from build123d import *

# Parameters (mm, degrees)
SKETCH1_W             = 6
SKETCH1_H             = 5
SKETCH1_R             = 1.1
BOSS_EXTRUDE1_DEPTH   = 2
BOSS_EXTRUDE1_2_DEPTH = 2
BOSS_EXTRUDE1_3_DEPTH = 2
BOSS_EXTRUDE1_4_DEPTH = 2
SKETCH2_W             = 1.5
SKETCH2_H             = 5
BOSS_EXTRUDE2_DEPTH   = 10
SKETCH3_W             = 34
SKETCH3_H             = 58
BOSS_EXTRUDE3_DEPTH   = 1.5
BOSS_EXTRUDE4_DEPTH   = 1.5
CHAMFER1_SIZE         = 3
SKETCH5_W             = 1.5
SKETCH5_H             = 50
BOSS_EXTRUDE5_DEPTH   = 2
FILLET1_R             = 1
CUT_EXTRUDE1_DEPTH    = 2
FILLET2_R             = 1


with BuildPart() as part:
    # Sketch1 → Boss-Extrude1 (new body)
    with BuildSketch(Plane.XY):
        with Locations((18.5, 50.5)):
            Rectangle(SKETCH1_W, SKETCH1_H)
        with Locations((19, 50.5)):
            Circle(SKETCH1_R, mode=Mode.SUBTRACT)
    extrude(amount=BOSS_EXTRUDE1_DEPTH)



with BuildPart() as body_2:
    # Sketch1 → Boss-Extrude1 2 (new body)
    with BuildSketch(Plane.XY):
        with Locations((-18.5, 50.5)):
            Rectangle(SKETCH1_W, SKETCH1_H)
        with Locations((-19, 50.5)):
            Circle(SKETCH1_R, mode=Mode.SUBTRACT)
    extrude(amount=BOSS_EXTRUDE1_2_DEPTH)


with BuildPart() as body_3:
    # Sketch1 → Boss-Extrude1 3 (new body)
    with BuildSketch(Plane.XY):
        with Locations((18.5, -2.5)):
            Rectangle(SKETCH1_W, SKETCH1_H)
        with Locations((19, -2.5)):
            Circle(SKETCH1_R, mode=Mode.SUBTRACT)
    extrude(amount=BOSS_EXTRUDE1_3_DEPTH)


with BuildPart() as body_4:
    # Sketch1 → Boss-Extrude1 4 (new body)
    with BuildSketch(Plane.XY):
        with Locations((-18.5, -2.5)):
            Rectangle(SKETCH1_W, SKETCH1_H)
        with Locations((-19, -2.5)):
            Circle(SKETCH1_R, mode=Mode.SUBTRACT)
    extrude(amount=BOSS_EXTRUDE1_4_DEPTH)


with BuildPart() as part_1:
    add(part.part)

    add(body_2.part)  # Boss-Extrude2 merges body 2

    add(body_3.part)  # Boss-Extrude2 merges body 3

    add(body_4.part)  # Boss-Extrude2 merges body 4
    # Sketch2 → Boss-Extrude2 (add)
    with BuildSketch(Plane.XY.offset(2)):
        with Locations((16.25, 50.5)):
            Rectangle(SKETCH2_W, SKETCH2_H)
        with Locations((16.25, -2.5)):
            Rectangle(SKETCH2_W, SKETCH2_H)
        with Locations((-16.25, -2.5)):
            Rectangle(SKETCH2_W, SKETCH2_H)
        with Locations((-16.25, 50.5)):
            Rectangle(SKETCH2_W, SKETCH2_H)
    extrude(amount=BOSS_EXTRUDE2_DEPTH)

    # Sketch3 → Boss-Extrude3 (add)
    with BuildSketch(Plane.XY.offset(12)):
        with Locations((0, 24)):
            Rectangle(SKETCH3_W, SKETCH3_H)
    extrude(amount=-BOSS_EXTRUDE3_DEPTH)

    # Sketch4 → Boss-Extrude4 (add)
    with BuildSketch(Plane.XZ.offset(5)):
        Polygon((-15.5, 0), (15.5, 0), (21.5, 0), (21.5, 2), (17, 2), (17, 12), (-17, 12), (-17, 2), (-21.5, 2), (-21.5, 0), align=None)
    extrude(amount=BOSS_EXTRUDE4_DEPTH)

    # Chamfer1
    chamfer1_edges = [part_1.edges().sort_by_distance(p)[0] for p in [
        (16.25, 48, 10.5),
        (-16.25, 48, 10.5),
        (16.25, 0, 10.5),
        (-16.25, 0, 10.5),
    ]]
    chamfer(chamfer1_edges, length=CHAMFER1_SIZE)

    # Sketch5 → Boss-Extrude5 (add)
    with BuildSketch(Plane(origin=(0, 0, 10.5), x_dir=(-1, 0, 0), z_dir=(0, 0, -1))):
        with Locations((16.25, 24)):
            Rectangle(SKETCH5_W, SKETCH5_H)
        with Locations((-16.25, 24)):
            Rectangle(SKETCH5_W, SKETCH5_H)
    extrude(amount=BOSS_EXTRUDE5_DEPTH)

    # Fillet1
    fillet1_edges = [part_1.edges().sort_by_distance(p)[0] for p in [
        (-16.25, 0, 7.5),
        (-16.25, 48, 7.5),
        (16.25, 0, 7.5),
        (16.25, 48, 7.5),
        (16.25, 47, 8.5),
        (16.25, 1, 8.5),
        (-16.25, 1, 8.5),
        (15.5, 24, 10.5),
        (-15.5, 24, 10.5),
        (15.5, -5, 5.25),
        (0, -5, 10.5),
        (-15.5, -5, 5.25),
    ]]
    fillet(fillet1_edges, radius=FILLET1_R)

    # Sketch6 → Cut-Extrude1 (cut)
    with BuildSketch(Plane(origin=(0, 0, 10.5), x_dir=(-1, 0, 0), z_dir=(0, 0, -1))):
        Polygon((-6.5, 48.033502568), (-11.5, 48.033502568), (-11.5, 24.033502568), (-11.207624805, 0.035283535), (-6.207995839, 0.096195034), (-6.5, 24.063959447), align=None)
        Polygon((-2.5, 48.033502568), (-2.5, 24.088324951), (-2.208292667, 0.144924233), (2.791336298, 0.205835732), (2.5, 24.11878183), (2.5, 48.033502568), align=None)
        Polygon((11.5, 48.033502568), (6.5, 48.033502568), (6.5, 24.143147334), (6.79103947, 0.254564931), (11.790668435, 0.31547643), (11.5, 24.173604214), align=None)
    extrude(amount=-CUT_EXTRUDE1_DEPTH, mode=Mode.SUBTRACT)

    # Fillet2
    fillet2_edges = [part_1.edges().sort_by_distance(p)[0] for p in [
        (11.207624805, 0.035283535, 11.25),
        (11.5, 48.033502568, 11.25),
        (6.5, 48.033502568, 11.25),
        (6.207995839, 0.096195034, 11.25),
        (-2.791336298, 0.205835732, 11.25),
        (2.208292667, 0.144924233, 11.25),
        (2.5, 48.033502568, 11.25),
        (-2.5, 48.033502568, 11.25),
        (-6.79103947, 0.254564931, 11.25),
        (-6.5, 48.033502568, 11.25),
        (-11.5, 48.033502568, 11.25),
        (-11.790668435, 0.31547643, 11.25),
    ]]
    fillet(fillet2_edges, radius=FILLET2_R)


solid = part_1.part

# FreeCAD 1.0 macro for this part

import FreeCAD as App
import Part
import Sketcher
from FreeCAD import Vector


def edges_at(feature, points):
    """Names of the edges that pass closest to the given points."""
    edges = feature.Shape.Edges
    near = lambda p: min(range(len(edges)), key=lambda i: edges[i].distToShape(Part.Vertex(*p))[0])
    return sorted({f"Edge{near(p) + 1}" for p in points})


def add_polygon(sketch, points):
    """Adds a closed chain of lines whose ends are joined by coincident constraints."""
    first, n = sketch.GeometryCount, len(points)
    for a, b in zip(points, points[1:] + points[:1]):
        sketch.addGeometry(Part.LineSegment(App.Vector(*a, 0), App.Vector(*b, 0)), False)
    for i in range(n):
        sketch.addConstraint(Sketcher.Constraint("Coincident", first + i, 2, first + (i + 1) % n, 1))

doc = App.newDocument("Part")
body = doc.addObject("PartDesign::Body", "Body")

# Sketch on XY plane
sketch1 = doc.addObject("Sketcher::SketchObject", "Sketch")
body.addObject(sketch1)
sketch1.AttachmentSupport = (doc.XY_Plane, [""])
sketch1.MapMode = "FlatFace"
add_polygon(sketch1, [(15.5, 53), (15.5, 48), (21.5, 48), (21.5, 53)])  # lines 0-3
sketch1.addGeometry(Part.Circle(Vector(19, 50.5, 0), Vector(0, 0, 1), 1.1), False)  # 4
sketch1.addConstraint(Sketcher.Constraint("Vertical", 0))
sketch1.addConstraint(Sketcher.Constraint("Horizontal", 1))
sketch1.addConstraint(Sketcher.Constraint("Vertical", 2))
sketch1.addConstraint(Sketcher.Constraint("Horizontal", 3))
sketch1.addConstraint(Sketcher.Constraint("Diameter", 4, 2.2))
sketch1.addConstraint(Sketcher.Constraint("DistanceX", 1, 1, 1, 2, 6.0))
sketch1.addConstraint(Sketcher.Constraint("DistanceY", 0, 2, 0, 1, 5.0))
sketch1.addConstraint(Sketcher.Constraint("DistanceX", -1, 1, 4, 3, 19.0))
sketch1.addConstraint(Sketcher.Constraint("DistanceY", -1, 1, 0, 2, 48.0))
sketch1.addConstraint(Sketcher.Constraint("DistanceY", -1, 1, 4, 3, 50.5))
sketch1.addConstraint(Sketcher.Constraint("DistanceX", -1, 1, 0, 2, 15.5))
pad1 = doc.addObject("PartDesign::Pad", "Pad")
body.addObject(pad1)
pad1.Profile = sketch1
pad1.Length = 2
body2 = doc.addObject("PartDesign::Body", "Body001")

# Sketch on XY plane
sketch2 = doc.addObject("Sketcher::SketchObject", "Sketch001")
body2.addObject(sketch2)
sketch2.AttachmentSupport = (doc.getObject("XY_Plane001"), [""])
sketch2.MapMode = "FlatFace"
add_polygon(sketch2, [(-21.5, 53), (-21.5, 48), (-15.5, 48), (-15.5, 53)])  # lines 0-3
sketch2.addGeometry(Part.Circle(Vector(-19, 50.5, 0), Vector(0, 0, 1), 1.1), False)  # 4
sketch2.addConstraint(Sketcher.Constraint("Vertical", 0))
sketch2.addConstraint(Sketcher.Constraint("Horizontal", 1))
sketch2.addConstraint(Sketcher.Constraint("Vertical", 2))
sketch2.addConstraint(Sketcher.Constraint("Horizontal", 3))
sketch2.addConstraint(Sketcher.Constraint("Diameter", 4, 2.2))
sketch2.addConstraint(Sketcher.Constraint("DistanceX", 1, 1, 1, 2, 6.0))
sketch2.addConstraint(Sketcher.Constraint("DistanceY", 0, 2, 0, 1, 5.0))
sketch2.addConstraint(Sketcher.Constraint("DistanceX", 4, 3, -1, 1, 19.0))
sketch2.addConstraint(Sketcher.Constraint("DistanceY", -1, 1, 0, 2, 48.0))
sketch2.addConstraint(Sketcher.Constraint("DistanceY", -1, 1, 4, 3, 50.5))
sketch2.addConstraint(Sketcher.Constraint("DistanceX", 0, 2, -1, 1, 21.5))
pad2 = doc.addObject("PartDesign::Pad", "Pad001")
body2.addObject(pad2)
pad2.Profile = sketch2
pad2.Length = 2
body3 = doc.addObject("PartDesign::Body", "Body002")

# Sketch on XY plane
sketch3 = doc.addObject("Sketcher::SketchObject", "Sketch002")
body3.addObject(sketch3)
sketch3.AttachmentSupport = (doc.getObject("XY_Plane002"), [""])
sketch3.MapMode = "FlatFace"
add_polygon(sketch3, [(15.5, 0), (15.5, -5), (21.5, -5), (21.5, 0)])  # lines 0-3
sketch3.addGeometry(Part.Circle(Vector(19, -2.5, 0), Vector(0, 0, 1), 1.1), False)  # 4
sketch3.addConstraint(Sketcher.Constraint("Vertical", 0))
sketch3.addConstraint(Sketcher.Constraint("Horizontal", 1))
sketch3.addConstraint(Sketcher.Constraint("Vertical", 2))
sketch3.addConstraint(Sketcher.Constraint("Horizontal", 3))
sketch3.addConstraint(Sketcher.Constraint("PointOnObject", 2, 2, -1))
sketch3.addConstraint(Sketcher.Constraint("Diameter", 4, 2.2))
sketch3.addConstraint(Sketcher.Constraint("DistanceX", 1, 1, 1, 2, 6.0))
sketch3.addConstraint(Sketcher.Constraint("DistanceY", 0, 2, 0, 1, 5.0))
sketch3.addConstraint(Sketcher.Constraint("DistanceX", -1, 1, 4, 3, 19.0))
sketch3.addConstraint(Sketcher.Constraint("DistanceY", 4, 3, -1, 1, 2.5))
sketch3.addConstraint(Sketcher.Constraint("DistanceX", -1, 1, 0, 2, 15.5))
pad3 = doc.addObject("PartDesign::Pad", "Pad002")
body3.addObject(pad3)
pad3.Profile = sketch3
pad3.Length = 2
body4 = doc.addObject("PartDesign::Body", "Body003")

# Sketch on XY plane
sketch4 = doc.addObject("Sketcher::SketchObject", "Sketch003")
body4.addObject(sketch4)
sketch4.AttachmentSupport = (doc.getObject("XY_Plane003"), [""])
sketch4.MapMode = "FlatFace"
add_polygon(sketch4, [(-21.5, 0), (-21.5, -5), (-15.5, -5), (-15.5, 0)])  # lines 0-3
sketch4.addGeometry(Part.Circle(Vector(-19, -2.5, 0), Vector(0, 0, 1), 1.1), False)  # 4
sketch4.addConstraint(Sketcher.Constraint("Vertical", 0))
sketch4.addConstraint(Sketcher.Constraint("Horizontal", 1))
sketch4.addConstraint(Sketcher.Constraint("Vertical", 2))
sketch4.addConstraint(Sketcher.Constraint("Horizontal", 3))
sketch4.addConstraint(Sketcher.Constraint("PointOnObject", 2, 2, -1))
sketch4.addConstraint(Sketcher.Constraint("Diameter", 4, 2.2))
sketch4.addConstraint(Sketcher.Constraint("DistanceX", 1, 1, 1, 2, 6.0))
sketch4.addConstraint(Sketcher.Constraint("DistanceY", 0, 2, 0, 1, 5.0))
sketch4.addConstraint(Sketcher.Constraint("DistanceX", 4, 3, -1, 1, 19.0))
sketch4.addConstraint(Sketcher.Constraint("DistanceY", 4, 3, -1, 1, 2.5))
sketch4.addConstraint(Sketcher.Constraint("DistanceX", 0, 2, -1, 1, 21.5))
pad4 = doc.addObject("PartDesign::Pad", "Pad003")
body4.addObject(pad4)
pad4.Profile = sketch4
pad4.Length = 2
body.AllowCompound = True
doc.recompute()

boolean = doc.addObject("PartDesign::Boolean", "Boolean")
body.addObject(boolean)
boolean.Type = "Fuse"
boolean.addObjects([body2])
doc.recompute()

boolean2 = doc.addObject("PartDesign::Boolean", "Boolean001")
body.addObject(boolean2)
boolean2.Type = "Fuse"
boolean2.addObjects([body3])
doc.recompute()

boolean3 = doc.addObject("PartDesign::Boolean", "Boolean002")
body.addObject(boolean3)
boolean3.Type = "Fuse"
boolean3.addObjects([body4])

# Sketch on XY plane
sketch5 = doc.addObject("Sketcher::SketchObject", "Sketch004")
body.addObject(sketch5)
sketch5.AttachmentSupport = (doc.XY_Plane, [""])
sketch5.MapMode = "FlatFace"
sketch5.AttachmentOffset = App.Placement(Vector(0, 0, 2), App.Rotation())
add_polygon(sketch5, [(15.5, 53), (15.5, 48), (17, 48), (17, 53)])  # lines 0-3
add_polygon(sketch5, [(15.5, 0), (15.5, -5), (17, -5), (17, 0)])  # lines 4-7
add_polygon(sketch5, [(-17, 0), (-17, -5), (-15.5, -5), (-15.5, 0)])  # lines 8-11
add_polygon(sketch5, [(-17, 53), (-17, 48), (-15.5, 48), (-15.5, 53)])  # lines 12-15
sketch5.addConstraint(Sketcher.Constraint("Vertical", 0))
sketch5.addConstraint(Sketcher.Constraint("Horizontal", 1))
sketch5.addConstraint(Sketcher.Constraint("Vertical", 2))
sketch5.addConstraint(Sketcher.Constraint("Horizontal", 3))
sketch5.addConstraint(Sketcher.Constraint("Vertical", 4))
sketch5.addConstraint(Sketcher.Constraint("Horizontal", 5))
sketch5.addConstraint(Sketcher.Constraint("Vertical", 6))
sketch5.addConstraint(Sketcher.Constraint("Horizontal", 7))
sketch5.addConstraint(Sketcher.Constraint("Vertical", 8))
sketch5.addConstraint(Sketcher.Constraint("Horizontal", 9))
sketch5.addConstraint(Sketcher.Constraint("Vertical", 10))
sketch5.addConstraint(Sketcher.Constraint("Horizontal", 11))
sketch5.addConstraint(Sketcher.Constraint("Vertical", 12))
sketch5.addConstraint(Sketcher.Constraint("Horizontal", 13))
sketch5.addConstraint(Sketcher.Constraint("Vertical", 14))
sketch5.addConstraint(Sketcher.Constraint("Horizontal", 15))
sketch5.addConstraint(Sketcher.Constraint("Symmetric", 7, 2, 10, 2, -1, 1))
sketch5.addConstraint(Sketcher.Constraint("Symmetric", 5, 2, 8, 2, -2))
sketch5.addConstraint(Sketcher.Constraint("Symmetric", 1, 2, 12, 2, -2))
sketch5.addConstraint(Sketcher.Constraint("Symmetric", 3, 2, 14, 2, -2))
sketch5.addConstraint(Sketcher.Constraint("PointOnObject", 6, 2, -1))
sketch5.addConstraint(Sketcher.Constraint("Vertical", 3, 2, 4, 2))
sketch5.addConstraint(Sketcher.Constraint("Vertical", 2, 2, 5, 2))
sketch5.addConstraint(Sketcher.Constraint("Equal", 2, 4))
sketch5.addConstraint(Sketcher.Constraint("DistanceY", 0, 2, 0, 1, 5.0))
sketch5.addConstraint(Sketcher.Constraint("DistanceX", 1, 1, 1, 2, 1.5))
sketch5.addConstraint(Sketcher.Constraint("DistanceY", -1, 1, 0, 2, 48.0))
sketch5.addConstraint(Sketcher.Constraint("DistanceX", -1, 1, 1, 2, 17.0))
pad5 = doc.addObject("PartDesign::Pad", "Pad004")
body.addObject(pad5)
pad5.Profile = sketch5
pad5.Length = 10

# Sketch on XY plane
sketch6 = doc.addObject("Sketcher::SketchObject", "Sketch005")
body.addObject(sketch6)
sketch6.AttachmentSupport = (doc.XY_Plane, [""])
sketch6.MapMode = "FlatFace"
sketch6.AttachmentOffset = App.Placement(Vector(0, 0, 12), App.Rotation())
add_polygon(sketch6, [(-17, 53), (-17, -5), (17, -5), (17, 53)])  # lines 0-3
sketch6.addConstraint(Sketcher.Constraint("Vertical", 0))
sketch6.addConstraint(Sketcher.Constraint("Horizontal", 1))
sketch6.addConstraint(Sketcher.Constraint("Vertical", 2))
sketch6.addConstraint(Sketcher.Constraint("Horizontal", 3))
sketch6.addConstraint(Sketcher.Constraint("DistanceX", 1, 1, 1, 2, 34.0))
sketch6.addConstraint(Sketcher.Constraint("DistanceY", 0, 2, 0, 1, 58.0))
sketch6.addConstraint(Sketcher.Constraint("DistanceX", 0, 2, -1, 1, 17.0))
sketch6.addConstraint(Sketcher.Constraint("DistanceY", 0, 2, -1, 1, 5.0))
pad6 = doc.addObject("PartDesign::Pad", "Pad005")
body.addObject(pad6)
pad6.Profile = sketch6
pad6.Length = 1.5
pad6.Reversed = True

# Sketch on XZ plane
sketch7 = doc.addObject("Sketcher::SketchObject", "Sketch006")
body.addObject(sketch7)
sketch7.AttachmentSupport = (doc.XZ_Plane, [""])
sketch7.MapMode = "FlatFace"
sketch7.AttachmentOffset = App.Placement(Vector(0, 0, 5), App.Rotation())
add_polygon(sketch7, [(21.5, 0), (21.5, 2), (17, 2), (17, 12), (-17, 12), (-17, 2), (-21.5, 2), (-21.5, 0)])  # lines 0-7
sketch7.addConstraint(Sketcher.Constraint("Vertical", 0))
sketch7.addConstraint(Sketcher.Constraint("Horizontal", 1))
sketch7.addConstraint(Sketcher.Constraint("Vertical", 2))
sketch7.addConstraint(Sketcher.Constraint("Horizontal", 3))
sketch7.addConstraint(Sketcher.Constraint("Vertical", 4))
sketch7.addConstraint(Sketcher.Constraint("Horizontal", 5))
sketch7.addConstraint(Sketcher.Constraint("Vertical", 6))
sketch7.addConstraint(Sketcher.Constraint("Horizontal", 7))
sketch7.addConstraint(Sketcher.Constraint("Symmetric", 6, 2, 7, 2, -1, 1))
sketch7.addConstraint(Sketcher.Constraint("Symmetric", 1, 2, 4, 2, -2))
sketch7.addConstraint(Sketcher.Constraint("DistanceX", 3, 2, 3, 1, 34.0))
sketch7.addConstraint(Sketcher.Constraint("DistanceX", 7, 1, 7, 2, 43.0))
sketch7.addConstraint(Sketcher.Constraint("DistanceY", 0, 1, 0, 2, 2.0))
sketch7.addConstraint(Sketcher.Constraint("DistanceY", 2, 1, 2, 2, 10.0))
pad7 = doc.addObject("PartDesign::Pad", "Pad006")
body.addObject(pad7)
pad7.Profile = sketch7
pad7.Length = 1.5
doc.recompute()

chamfer = doc.addObject("PartDesign::Chamfer", "Chamfer")
body.addObject(chamfer)
chamfer.Base = (pad7, edges_at(pad7, [
    (16.25, 48, 10.5),
    (-16.25, 48, 10.5),
    (16.25, 0, 10.5),
    (-16.25, 0, 10.5),
]))
chamfer.Size = 3

# Sketch on XY plane
sketch8 = doc.addObject("Sketcher::SketchObject", "Sketch007")
body.addObject(sketch8)
sketch8.AttachmentSupport = (doc.XY_Plane, [""])
sketch8.MapMode = "FlatFace"
sketch8.AttachmentOffset = App.Placement(Vector(0, 0, 10.5), App.Rotation())
add_polygon(sketch8, [(-15.5, 49), (-15.5, -1), (-17, -1), (-17, 49)])  # lines 0-3
add_polygon(sketch8, [(17, 49), (17, -1), (15.5, -1), (15.5, 49)])  # lines 4-7
sketch8.addConstraint(Sketcher.Constraint("Vertical", 0))
sketch8.addConstraint(Sketcher.Constraint("Horizontal", 1))
sketch8.addConstraint(Sketcher.Constraint("Vertical", 2))
sketch8.addConstraint(Sketcher.Constraint("Horizontal", 3))
sketch8.addConstraint(Sketcher.Constraint("Vertical", 4))
sketch8.addConstraint(Sketcher.Constraint("Horizontal", 5))
sketch8.addConstraint(Sketcher.Constraint("Vertical", 6))
sketch8.addConstraint(Sketcher.Constraint("Horizontal", 7))
sketch8.addConstraint(Sketcher.Constraint("Symmetric", 1, 2, 4, 2, -2))
sketch8.addConstraint(Sketcher.Constraint("Symmetric", 3, 2, 6, 2, -2))
sketch8.addConstraint(Sketcher.Constraint("DistanceY", 0, 2, 0, 1, 50.0))
sketch8.addConstraint(Sketcher.Constraint("DistanceX", 1, 2, 1, 1, 1.5))
sketch8.addConstraint(Sketcher.Constraint("DistanceY", 0, 2, -1, 1, 1.0))
sketch8.addConstraint(Sketcher.Constraint("DistanceX", 1, 2, -1, 1, 17.0))
pad8 = doc.addObject("PartDesign::Pad", "Pad007")
body.addObject(pad8)
pad8.Profile = sketch8
pad8.Length = 2
pad8.Reversed = True
doc.recompute()

fillet = doc.addObject("PartDesign::Fillet", "Fillet")
body.addObject(fillet)
fillet.Base = (pad8, edges_at(pad8, [
    (-16.25, 0, 7.5),
    (-16.25, 48, 7.5),
    (16.25, 0, 7.5),
    (16.25, 48, 7.5),
    (16.25, 47, 8.5),
    (16.25, 1, 8.5),
    (-16.25, 1, 8.5),
    (15.5, 24, 10.5),
    (-15.5, 24, 10.5),
    (15.5, -5, 5.25),
    (0, -5, 10.5),
    (-15.5, -5, 5.25),
]))
fillet.Radius = 1

# Sketch on XY plane
sketch9 = doc.addObject("Sketcher::SketchObject", "Sketch008")
body.addObject(sketch9)
sketch9.AttachmentSupport = (doc.XY_Plane, [""])
sketch9.MapMode = "FlatFace"
sketch9.AttachmentOffset = App.Placement(Vector(0, 0, 10.5), App.Rotation())
add_polygon(sketch9, [(6.5, 48.033503), (11.5, 48.033503), (11.5, 24.033503), (11.207625, 0.035284), (6.207996, 0.096195), (6.5, 24.063959)])  # lines 0-5
add_polygon(sketch9, [(2.5, 48.033503), (2.5, 24.088325), (2.208293, 0.144924), (-2.791336, 0.205836), (-2.5, 24.118782), (-2.5, 48.033503)])  # lines 6-11
add_polygon(sketch9, [(-11.5, 48.033503), (-6.5, 48.033503), (-6.5, 24.143147), (-6.791039, 0.254565), (-11.790668, 0.315476), (-11.5, 24.173604)])  # lines 12-17
sketch9.addConstraint(Sketcher.Constraint("Horizontal", 0))
sketch9.addConstraint(Sketcher.Constraint("Vertical", 1))
sketch9.addConstraint(Sketcher.Constraint("Vertical", 5))
sketch9.addConstraint(Sketcher.Constraint("Vertical", 6))
sketch9.addConstraint(Sketcher.Constraint("Vertical", 10))
sketch9.addConstraint(Sketcher.Constraint("Horizontal", 11))
sketch9.addConstraint(Sketcher.Constraint("Horizontal", 12))
sketch9.addConstraint(Sketcher.Constraint("Vertical", 13))
sketch9.addConstraint(Sketcher.Constraint("Vertical", 17))
sketch9.addConstraint(Sketcher.Constraint("Symmetric", 5, 2, 12, 2, -2))
sketch9.addConstraint(Sketcher.Constraint("Perpendicular", 2, 3))
sketch9.addConstraint(Sketcher.Constraint("Perpendicular", 3, 4))
sketch9.addConstraint(Sketcher.Constraint("Parallel", 4, 7))
sketch9.addConstraint(Sketcher.Constraint("Perpendicular", 7, 8))
sketch9.addConstraint(Sketcher.Constraint("Perpendicular", 8, 9))
sketch9.addConstraint(Sketcher.Constraint("Parallel", 9, 14))
sketch9.addConstraint(Sketcher.Constraint("Perpendicular", 14, 15))
sketch9.addConstraint(Sketcher.Constraint("Perpendicular", 15, 16))
sketch9.addConstraint(Sketcher.Constraint("Horizontal", 5, 2, 10, 2))
sketch9.addConstraint(Sketcher.Constraint("Equal", 0, 11))
sketch9.addConstraint(Sketcher.Constraint("Equal", 11, 12))
sketch9.addConstraint(Sketcher.Constraint("Equal", 3, 8))
sketch9.addConstraint(Sketcher.Constraint("Equal", 8, 15))
sketch9.addConstraint(Sketcher.Constraint("DistanceX", 0, 1, 0, 2, 5.0))
sketch9.addConstraint(Sketcher.Constraint("DistanceY", 1, 2, 1, 1, 24.0))
sketch9.addConstraint(Sketcher.Constraint("Distance", 2, 24.0))
sketch9.addConstraint(Sketcher.Constraint("Distance", 3, 5.0))
sketch9.addConstraint(Sketcher.Constraint("DistanceX", 6, 2, 4, 2, 4.0))
sketch9.addConstraint(Sketcher.Constraint("DistanceX", 12, 2, 10, 2, 4.0))
sketch9.addConstraint(Sketcher.Constraint("DistanceY", 17, 1, 17, 2, 23.859898))
sketch9.addConstraint(Sketcher.Constraint("Distance", 16, 23.859898))
sketch9.addConstraint(Sketcher.Constraint("DistanceY", 10, 1, 10, 2, 23.914721))
sketch9.addConstraint(Sketcher.Constraint("DistanceY", 7, 2, 6, 2, 23.943401))
sketch9.addConstraint(Sketcher.Constraint("Distance", 9, 23.914721))
sketch9.addConstraint(Sketcher.Constraint("DistanceY", -1, 1, 4, 2, 24.063959))
pocket1 = doc.addObject("PartDesign::Pocket", "Pocket")
body.addObject(pocket1)
pocket1.Profile = sketch9
pocket1.Length = 2
pocket1.Reversed = True
doc.recompute()

fillet2 = doc.addObject("PartDesign::Fillet", "Fillet001")
body.addObject(fillet2)
fillet2.Base = (pocket1, edges_at(pocket1, [
    (11.208, 0.035, 11.25),
    (11.5, 48.034, 11.25),
    (6.5, 48.034, 11.25),
    (6.208, 0.096, 11.25),
    (-2.791, 0.206, 11.25),
    (2.208, 0.145, 11.25),
    (2.5, 48.034, 11.25),
    (-2.5, 48.034, 11.25),
    (-6.791, 0.255, 11.25),
    (-6.5, 48.034, 11.25),
    (-11.5, 48.034, 11.25),
    (-11.791, 0.315, 11.25),
]))
fillet2.Radius = 1

doc.recompute()
